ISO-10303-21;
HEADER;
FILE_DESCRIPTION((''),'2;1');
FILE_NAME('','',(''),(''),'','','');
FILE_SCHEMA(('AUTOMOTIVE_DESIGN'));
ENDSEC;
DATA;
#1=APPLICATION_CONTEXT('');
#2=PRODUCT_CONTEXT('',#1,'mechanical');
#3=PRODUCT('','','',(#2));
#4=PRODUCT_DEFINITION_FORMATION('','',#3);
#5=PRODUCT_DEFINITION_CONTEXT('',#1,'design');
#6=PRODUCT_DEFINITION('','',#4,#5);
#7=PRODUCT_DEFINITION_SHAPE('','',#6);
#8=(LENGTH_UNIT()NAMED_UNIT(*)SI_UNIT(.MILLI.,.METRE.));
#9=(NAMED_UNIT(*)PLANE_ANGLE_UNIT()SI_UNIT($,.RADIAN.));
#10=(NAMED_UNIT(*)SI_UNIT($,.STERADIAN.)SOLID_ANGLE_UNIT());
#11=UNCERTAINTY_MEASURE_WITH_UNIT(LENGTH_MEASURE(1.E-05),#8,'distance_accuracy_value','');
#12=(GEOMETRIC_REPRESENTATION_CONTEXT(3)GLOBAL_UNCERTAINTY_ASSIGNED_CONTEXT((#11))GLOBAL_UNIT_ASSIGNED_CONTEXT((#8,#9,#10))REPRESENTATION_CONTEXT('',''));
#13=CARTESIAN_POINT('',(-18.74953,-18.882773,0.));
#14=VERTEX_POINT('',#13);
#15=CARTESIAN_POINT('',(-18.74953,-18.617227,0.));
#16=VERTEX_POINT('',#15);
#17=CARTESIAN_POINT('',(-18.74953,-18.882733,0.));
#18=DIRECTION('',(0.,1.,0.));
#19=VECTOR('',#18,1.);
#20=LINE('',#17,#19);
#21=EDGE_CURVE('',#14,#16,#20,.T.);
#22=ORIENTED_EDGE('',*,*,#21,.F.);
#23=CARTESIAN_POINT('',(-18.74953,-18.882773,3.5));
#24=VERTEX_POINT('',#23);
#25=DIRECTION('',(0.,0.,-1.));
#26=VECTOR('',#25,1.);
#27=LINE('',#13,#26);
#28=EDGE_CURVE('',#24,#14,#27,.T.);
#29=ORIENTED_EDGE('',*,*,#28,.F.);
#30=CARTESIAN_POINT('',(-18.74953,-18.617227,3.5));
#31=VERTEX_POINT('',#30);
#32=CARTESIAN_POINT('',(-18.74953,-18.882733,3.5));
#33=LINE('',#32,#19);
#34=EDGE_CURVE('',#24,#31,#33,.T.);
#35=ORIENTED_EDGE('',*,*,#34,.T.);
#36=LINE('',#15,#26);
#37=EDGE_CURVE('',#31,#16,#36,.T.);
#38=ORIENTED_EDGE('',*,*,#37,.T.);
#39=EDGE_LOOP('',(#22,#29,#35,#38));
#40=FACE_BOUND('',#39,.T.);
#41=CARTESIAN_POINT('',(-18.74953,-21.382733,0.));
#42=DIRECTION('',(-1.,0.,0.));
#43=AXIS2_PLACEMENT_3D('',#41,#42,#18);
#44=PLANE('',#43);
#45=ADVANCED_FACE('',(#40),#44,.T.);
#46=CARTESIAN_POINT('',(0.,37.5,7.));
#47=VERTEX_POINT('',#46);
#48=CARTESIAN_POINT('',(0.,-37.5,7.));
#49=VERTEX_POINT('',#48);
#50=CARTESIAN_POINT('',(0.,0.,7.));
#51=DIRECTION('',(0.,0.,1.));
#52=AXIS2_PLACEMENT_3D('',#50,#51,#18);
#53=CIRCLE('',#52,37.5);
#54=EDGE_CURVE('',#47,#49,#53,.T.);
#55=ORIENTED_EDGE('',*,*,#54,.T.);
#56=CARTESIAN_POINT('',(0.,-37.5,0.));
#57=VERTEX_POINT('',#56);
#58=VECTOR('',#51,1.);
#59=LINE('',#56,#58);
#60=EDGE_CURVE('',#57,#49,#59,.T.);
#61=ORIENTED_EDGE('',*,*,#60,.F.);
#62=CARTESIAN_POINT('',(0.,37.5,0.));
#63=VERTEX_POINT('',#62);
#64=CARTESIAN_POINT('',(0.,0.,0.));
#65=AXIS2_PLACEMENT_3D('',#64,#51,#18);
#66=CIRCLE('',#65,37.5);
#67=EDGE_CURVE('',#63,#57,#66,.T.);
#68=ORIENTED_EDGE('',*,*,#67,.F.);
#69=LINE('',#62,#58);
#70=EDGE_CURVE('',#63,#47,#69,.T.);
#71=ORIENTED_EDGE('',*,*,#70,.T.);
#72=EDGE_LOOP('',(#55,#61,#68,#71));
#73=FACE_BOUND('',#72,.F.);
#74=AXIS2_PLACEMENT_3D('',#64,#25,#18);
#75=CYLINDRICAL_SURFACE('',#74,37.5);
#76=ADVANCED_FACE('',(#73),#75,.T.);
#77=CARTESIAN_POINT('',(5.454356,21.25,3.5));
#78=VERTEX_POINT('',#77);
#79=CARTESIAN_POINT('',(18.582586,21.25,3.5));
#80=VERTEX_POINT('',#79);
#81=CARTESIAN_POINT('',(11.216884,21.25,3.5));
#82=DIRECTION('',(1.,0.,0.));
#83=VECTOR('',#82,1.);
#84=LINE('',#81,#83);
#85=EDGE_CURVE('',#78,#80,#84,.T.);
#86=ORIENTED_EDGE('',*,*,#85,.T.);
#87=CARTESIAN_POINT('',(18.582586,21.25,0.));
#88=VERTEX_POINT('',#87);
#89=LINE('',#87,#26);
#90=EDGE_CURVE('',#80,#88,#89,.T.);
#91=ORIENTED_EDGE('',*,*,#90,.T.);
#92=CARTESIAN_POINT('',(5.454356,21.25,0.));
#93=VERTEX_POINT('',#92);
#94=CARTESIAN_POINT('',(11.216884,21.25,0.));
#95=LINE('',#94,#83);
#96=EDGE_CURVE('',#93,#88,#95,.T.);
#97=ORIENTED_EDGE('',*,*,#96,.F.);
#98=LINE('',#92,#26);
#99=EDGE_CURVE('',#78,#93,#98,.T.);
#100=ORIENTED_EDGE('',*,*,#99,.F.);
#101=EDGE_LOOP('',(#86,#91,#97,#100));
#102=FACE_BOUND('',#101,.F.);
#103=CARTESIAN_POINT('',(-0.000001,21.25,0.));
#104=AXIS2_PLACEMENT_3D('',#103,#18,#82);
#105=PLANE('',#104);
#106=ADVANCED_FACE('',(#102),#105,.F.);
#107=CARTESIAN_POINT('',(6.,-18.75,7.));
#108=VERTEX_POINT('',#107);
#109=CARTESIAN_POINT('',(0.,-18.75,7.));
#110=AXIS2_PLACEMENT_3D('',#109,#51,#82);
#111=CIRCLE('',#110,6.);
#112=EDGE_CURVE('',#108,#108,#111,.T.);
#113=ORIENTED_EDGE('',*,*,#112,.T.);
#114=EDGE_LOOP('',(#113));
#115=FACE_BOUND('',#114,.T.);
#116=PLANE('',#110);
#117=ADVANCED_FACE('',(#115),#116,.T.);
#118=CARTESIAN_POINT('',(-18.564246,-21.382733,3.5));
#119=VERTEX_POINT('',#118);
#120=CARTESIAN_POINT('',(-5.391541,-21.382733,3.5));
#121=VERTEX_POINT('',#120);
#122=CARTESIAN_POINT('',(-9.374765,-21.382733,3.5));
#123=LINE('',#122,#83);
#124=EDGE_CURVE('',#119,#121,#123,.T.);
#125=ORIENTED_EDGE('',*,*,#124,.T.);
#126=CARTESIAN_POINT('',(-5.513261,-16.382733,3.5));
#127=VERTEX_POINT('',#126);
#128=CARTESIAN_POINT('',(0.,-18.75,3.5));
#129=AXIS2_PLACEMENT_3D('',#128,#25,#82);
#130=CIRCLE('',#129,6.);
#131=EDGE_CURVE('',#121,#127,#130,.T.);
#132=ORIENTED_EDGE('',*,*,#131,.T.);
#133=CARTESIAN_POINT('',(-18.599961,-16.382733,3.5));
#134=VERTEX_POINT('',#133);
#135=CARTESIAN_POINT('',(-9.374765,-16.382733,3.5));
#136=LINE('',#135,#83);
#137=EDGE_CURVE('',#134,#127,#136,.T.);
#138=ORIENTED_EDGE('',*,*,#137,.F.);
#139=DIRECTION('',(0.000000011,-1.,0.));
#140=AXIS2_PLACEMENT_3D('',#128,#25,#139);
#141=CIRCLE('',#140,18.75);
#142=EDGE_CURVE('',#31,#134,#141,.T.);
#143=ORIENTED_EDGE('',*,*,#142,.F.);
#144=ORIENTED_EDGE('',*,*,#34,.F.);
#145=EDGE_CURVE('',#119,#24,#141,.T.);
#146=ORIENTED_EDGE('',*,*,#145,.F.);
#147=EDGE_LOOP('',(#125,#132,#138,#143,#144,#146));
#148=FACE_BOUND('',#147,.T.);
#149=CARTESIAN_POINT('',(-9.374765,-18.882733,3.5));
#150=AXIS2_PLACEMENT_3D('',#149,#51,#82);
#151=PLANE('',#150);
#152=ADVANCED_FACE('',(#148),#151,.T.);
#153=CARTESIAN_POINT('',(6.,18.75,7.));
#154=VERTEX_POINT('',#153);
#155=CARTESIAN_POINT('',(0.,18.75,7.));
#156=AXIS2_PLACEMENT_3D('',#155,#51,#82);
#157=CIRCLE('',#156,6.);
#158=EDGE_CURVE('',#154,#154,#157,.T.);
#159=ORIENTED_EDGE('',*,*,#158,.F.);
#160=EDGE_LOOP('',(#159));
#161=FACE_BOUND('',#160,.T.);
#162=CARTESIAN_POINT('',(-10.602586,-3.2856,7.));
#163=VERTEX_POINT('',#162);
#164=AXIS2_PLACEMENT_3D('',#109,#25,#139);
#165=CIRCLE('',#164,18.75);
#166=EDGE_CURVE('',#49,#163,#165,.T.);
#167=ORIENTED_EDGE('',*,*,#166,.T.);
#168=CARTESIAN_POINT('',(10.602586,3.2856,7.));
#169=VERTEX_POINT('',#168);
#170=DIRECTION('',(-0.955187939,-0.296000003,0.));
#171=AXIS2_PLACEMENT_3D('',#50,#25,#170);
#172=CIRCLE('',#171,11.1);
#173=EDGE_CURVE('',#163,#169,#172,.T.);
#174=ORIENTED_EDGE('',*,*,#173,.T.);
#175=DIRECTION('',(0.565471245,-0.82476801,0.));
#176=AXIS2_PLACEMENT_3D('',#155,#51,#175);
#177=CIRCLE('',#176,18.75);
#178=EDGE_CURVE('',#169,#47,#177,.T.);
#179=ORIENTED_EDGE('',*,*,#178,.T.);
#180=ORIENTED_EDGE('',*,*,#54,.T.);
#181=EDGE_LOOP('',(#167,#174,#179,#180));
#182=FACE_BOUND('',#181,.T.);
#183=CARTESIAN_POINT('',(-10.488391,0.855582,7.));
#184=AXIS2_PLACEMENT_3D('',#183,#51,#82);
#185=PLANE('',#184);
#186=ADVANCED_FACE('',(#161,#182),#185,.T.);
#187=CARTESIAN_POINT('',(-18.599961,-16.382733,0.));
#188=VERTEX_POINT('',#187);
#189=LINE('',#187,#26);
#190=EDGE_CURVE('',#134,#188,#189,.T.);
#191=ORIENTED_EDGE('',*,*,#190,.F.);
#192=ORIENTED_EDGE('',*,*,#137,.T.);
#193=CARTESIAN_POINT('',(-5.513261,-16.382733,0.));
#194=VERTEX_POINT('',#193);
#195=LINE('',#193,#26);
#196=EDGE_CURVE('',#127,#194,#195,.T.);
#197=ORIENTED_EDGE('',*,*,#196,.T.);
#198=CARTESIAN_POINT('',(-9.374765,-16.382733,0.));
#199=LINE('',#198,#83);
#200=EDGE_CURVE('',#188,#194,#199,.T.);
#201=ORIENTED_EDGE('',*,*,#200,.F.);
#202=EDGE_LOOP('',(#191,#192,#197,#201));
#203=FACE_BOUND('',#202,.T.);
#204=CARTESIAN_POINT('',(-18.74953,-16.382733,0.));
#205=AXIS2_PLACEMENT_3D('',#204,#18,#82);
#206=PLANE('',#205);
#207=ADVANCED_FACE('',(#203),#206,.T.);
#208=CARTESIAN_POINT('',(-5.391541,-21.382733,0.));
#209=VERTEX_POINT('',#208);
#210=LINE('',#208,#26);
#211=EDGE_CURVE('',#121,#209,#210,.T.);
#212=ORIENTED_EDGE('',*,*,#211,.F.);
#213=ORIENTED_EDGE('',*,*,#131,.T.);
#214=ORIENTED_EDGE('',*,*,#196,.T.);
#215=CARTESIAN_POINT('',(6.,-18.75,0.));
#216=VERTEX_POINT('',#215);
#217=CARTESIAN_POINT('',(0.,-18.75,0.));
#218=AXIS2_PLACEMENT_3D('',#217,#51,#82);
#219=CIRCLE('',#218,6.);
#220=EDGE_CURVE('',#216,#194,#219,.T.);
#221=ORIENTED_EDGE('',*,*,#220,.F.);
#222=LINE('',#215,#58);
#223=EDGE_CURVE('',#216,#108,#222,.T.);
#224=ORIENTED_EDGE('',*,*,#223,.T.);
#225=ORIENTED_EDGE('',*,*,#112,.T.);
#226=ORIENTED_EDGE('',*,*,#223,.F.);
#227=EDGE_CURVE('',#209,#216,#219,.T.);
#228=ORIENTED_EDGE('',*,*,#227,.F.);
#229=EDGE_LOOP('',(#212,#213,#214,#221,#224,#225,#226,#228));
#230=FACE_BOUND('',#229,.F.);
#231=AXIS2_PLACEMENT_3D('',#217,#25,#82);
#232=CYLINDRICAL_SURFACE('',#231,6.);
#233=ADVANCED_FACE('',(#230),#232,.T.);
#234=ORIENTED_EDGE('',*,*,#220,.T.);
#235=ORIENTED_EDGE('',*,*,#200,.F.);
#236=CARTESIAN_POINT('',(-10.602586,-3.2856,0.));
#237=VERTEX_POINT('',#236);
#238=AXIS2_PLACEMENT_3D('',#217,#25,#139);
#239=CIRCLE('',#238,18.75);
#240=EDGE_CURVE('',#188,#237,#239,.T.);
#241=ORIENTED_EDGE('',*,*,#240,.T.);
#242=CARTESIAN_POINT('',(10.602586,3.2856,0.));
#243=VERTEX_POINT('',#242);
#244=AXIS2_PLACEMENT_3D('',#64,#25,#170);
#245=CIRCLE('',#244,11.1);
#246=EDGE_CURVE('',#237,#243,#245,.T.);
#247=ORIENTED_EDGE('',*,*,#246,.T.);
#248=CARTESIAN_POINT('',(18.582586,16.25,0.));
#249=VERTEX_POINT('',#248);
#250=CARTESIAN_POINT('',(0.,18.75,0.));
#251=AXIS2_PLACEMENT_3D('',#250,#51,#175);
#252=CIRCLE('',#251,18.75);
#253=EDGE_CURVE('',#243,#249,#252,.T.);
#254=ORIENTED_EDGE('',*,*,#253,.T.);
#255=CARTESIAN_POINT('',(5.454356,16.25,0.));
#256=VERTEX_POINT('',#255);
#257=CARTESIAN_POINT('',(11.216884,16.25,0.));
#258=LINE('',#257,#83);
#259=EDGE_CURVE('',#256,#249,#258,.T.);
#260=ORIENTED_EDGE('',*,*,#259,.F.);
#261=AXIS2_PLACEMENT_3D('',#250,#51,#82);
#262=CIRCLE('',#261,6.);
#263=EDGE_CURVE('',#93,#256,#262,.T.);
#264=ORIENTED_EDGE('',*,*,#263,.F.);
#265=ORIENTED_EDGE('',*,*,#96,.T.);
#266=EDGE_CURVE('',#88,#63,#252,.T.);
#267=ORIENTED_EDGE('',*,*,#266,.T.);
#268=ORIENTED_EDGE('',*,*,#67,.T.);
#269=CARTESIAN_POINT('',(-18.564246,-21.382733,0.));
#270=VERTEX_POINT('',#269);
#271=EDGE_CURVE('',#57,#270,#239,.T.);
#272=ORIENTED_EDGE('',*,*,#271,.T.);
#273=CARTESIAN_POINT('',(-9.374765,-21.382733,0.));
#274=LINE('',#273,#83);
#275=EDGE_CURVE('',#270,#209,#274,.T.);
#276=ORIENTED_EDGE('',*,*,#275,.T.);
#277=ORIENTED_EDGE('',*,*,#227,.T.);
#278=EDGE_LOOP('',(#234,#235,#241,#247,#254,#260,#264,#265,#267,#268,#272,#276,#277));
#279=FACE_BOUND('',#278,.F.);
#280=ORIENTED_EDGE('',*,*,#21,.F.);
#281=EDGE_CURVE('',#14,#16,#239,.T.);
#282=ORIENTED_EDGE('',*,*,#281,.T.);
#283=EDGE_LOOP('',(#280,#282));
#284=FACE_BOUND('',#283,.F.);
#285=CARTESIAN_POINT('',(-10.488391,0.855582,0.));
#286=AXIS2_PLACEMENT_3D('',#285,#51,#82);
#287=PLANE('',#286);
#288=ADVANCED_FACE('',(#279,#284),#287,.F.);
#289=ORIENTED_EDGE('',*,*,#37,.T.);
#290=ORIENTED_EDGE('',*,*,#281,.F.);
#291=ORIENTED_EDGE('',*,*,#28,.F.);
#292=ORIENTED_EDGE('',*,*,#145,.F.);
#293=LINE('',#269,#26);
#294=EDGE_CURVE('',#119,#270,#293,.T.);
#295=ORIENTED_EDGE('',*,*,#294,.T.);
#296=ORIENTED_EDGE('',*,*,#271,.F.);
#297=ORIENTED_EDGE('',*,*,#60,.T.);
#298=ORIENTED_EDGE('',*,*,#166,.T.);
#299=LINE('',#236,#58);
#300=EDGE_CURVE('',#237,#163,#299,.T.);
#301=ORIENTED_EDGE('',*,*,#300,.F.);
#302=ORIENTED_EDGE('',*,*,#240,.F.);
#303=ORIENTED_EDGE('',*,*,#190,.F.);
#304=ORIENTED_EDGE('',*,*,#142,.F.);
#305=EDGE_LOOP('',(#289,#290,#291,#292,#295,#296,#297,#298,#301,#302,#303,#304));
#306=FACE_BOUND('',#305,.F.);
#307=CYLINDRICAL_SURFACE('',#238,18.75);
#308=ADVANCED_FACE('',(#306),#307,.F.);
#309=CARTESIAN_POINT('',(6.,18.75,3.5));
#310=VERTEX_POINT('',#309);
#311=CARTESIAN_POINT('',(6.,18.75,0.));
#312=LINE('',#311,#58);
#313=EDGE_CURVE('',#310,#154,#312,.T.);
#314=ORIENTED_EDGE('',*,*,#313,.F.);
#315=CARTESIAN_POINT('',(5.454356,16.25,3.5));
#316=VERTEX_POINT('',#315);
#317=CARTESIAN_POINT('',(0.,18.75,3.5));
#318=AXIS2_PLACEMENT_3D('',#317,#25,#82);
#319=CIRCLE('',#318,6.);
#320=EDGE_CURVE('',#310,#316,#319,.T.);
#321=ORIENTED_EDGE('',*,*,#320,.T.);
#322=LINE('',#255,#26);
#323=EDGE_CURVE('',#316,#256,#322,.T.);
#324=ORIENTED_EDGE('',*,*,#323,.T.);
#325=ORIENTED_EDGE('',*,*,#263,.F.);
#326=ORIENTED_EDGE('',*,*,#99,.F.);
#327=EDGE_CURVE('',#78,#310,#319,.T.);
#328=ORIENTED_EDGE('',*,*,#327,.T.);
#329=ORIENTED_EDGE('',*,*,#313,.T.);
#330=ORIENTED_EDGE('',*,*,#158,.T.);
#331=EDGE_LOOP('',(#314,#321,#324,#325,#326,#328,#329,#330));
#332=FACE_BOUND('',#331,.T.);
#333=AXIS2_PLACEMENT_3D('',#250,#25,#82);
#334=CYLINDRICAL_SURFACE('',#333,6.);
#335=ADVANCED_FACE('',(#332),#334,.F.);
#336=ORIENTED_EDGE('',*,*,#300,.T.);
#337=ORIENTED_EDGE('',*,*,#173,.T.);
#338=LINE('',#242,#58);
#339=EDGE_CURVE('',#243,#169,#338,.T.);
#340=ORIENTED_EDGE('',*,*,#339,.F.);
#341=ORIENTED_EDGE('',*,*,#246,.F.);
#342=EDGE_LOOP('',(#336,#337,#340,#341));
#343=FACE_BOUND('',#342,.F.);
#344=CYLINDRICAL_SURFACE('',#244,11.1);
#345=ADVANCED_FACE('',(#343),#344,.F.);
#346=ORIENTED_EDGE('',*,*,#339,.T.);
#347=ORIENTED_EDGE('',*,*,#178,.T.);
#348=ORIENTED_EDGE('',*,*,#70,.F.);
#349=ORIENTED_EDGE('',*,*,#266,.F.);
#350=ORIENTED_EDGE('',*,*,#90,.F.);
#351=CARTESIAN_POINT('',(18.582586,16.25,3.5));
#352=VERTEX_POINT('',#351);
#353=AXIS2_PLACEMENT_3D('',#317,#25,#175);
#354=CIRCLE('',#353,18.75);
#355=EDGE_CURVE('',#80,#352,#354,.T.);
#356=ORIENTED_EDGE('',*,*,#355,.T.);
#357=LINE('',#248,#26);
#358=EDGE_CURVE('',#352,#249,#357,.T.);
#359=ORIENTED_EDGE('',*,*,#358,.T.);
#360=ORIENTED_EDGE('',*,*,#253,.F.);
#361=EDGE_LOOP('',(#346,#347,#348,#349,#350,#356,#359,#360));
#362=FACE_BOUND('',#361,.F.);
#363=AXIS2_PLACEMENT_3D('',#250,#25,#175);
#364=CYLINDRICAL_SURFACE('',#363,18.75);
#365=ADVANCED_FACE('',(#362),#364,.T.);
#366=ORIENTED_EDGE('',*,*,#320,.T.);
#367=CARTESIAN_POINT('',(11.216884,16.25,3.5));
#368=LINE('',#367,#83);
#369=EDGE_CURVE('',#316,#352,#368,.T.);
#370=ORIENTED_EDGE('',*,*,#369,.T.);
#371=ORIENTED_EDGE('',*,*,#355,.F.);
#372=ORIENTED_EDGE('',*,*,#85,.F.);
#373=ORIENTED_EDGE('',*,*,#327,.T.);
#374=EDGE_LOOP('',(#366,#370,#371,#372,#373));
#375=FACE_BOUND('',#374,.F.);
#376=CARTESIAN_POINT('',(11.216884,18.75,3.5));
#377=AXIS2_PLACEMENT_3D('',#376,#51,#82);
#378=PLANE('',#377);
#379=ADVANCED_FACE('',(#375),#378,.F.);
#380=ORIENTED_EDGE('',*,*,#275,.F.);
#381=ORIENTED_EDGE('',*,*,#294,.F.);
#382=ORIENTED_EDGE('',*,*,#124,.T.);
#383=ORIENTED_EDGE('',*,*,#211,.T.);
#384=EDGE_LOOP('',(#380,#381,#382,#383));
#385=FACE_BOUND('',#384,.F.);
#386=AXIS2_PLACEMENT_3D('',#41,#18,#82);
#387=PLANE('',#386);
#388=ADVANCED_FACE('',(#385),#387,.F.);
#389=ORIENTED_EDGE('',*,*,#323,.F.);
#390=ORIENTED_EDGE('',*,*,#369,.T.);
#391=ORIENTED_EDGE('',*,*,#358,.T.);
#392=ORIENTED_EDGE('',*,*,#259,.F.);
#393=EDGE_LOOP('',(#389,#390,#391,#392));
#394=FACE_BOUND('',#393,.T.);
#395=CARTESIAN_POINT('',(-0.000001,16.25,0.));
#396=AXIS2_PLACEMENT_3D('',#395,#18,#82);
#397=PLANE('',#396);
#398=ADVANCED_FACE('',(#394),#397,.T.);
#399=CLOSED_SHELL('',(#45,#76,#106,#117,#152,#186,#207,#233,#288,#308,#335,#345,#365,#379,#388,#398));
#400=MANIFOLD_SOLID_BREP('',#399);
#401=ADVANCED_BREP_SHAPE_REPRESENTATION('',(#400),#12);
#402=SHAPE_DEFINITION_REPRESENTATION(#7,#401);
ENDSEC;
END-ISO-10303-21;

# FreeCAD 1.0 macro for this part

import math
import FreeCAD as App
import Part
import Sketcher
from FreeCAD import Vector

doc = App.newDocument("Part")
params = doc.addObject("Spreadsheet::Sheet", "Params")
for row, (alias, value) in enumerate([
    ("sketch1_diameter", "12 mm"),
    ("sketch1_radius", "37.5 mm"),
    ("sketch1_radius2", "11.1 mm"),
    ("sketch1_radius3", "18.75 mm"),
    ("pad1_length", "7 mm"),
    ("sketch2_height", "5 mm"),
    ("pad2_length", "3.5 mm"),
    ("sketch3_height", "5 mm"),
    ("pocket1_length", "3.5 mm"),
], start=1):
    params.set(f"A{row}", alias)
    params.set(f"B{row}", "=" + value)
    params.setAlias(f"B{row}", alias)

body = doc.addObject("PartDesign::Body", "Body")
body.AllowCompound = True

# Sketch on XY plane
sketch1 = body.newObject("Sketcher::SketchObject", "Sketch")
sketch1.AttachmentSupport = (doc.getObject("XY_Plane"), [""])
sketch1.MapMode = "FlatFace"
sketch1.addGeometry([
    Part.ArcOfCircle(Part.Circle(Vector(0, 19, 0), Vector(0, 0, 1), 19), math.radians(-56), math.radians(90)),  # 0
    Part.ArcOfCircle(Part.Circle(Vector(0, 0, 0), Vector(0, 0, 1), 38), math.radians(90), math.radians(270)),  # 1
    Part.ArcOfCircle(Part.Circle(Vector(0, -19, 0), Vector(0, 0, 1), 19), math.radians(124), math.radians(270)),  # 2
    Part.ArcOfCircle(Part.Circle(Vector(0, 0, 0), Vector(0, 0, 1), 11), math.radians(17), math.radians(197)),  # 3
    Part.Circle(Vector(0, 19, 0), Vector(0, 0, 1), 6),  # 4
    Part.Circle(Vector(0, -19, 0), Vector(0, 0, 1), 6),  # 5
], False)
sketch1.addConstraint([
    Sketcher.Constraint("Tangent", 0, 2, 1, 1),
    Sketcher.Constraint("Tangent", 1, 2, 2, 2),
    Sketcher.Constraint("Coincident", 2, 1, 3, 2),
    Sketcher.Constraint("Coincident", 3, 1, 0, 1),
    Sketcher.Constraint("Coincident", 1, 3, -1, 1),
    Sketcher.Constraint("Coincident", 3, 3, -1, 1),
    Sketcher.Constraint("Coincident", 4, 3, 0, 3),
    Sketcher.Constraint("Coincident", 5, 3, 2, 3),
    Sketcher.Constraint("Equal", 0, 2),
    Sketcher.Constraint("Equal", 4, 5),
    Sketcher.Constraint("PointOnObject", 0, 3, -2),
    Sketcher.Constraint("PointOnObject", 2, 3, -2),
    Sketcher.Constraint("Diameter", 4, 12.0),
    Sketcher.Constraint("Radius", 1, 37.5),
    Sketcher.Constraint("Radius", 3, 11.1),
    Sketcher.Constraint("Radius", 0, 18.75),
])
sketch1.setExpression("Constraints[12]", "Params.sketch1_diameter")
sketch1.setExpression("Constraints[13]", "Params.sketch1_radius")
sketch1.setExpression("Constraints[14]", "Params.sketch1_radius2")
sketch1.setExpression("Constraints[15]", "Params.sketch1_radius3")
pad1 = body.newObject("PartDesign::Pad", "Pad")
pad1.Profile = sketch1
pad1.setExpression("Length", "Params.pad1_length")

# Sketch on XY plane
sketch2 = body.newObject("Sketcher::SketchObject", "Sketch001")
sketch2.AttachmentSupport = (doc.getObject("XY_Plane"), [""])
sketch2.MapMode = "FlatFace"
sketch2.addGeometry([
    Part.LineSegment(Vector(-19, -16, 0), Vector(-19, -21, 0)),
    Part.LineSegment(Vector(-19, -21, 0), Vector(0, -21, 0)),
    Part.LineSegment(Vector(0, -21, 0), Vector(0, -16, 0)),
    Part.LineSegment(Vector(0, -16, 0), Vector(-19, -16, 0)),
], False)
sketch2.addConstraint([
    Sketcher.Constraint("Coincident", 0, 2, 1, 1),
    Sketcher.Constraint("Coincident", 1, 2, 2, 1),
    Sketcher.Constraint("Coincident", 2, 2, 3, 1),
    Sketcher.Constraint("Coincident", 3, 2, 0, 1),
    Sketcher.Constraint("Vertical", 0),
    Sketcher.Constraint("Horizontal", 1),
    Sketcher.Constraint("Vertical", 2),
    Sketcher.Constraint("Horizontal", 3),
    Sketcher.Constraint("PointOnObject", 1, 2, -2),
    Sketcher.Constraint("DistanceY", 0, 2, 0, 1, 5.0),
    Sketcher.Constraint("DistanceX", 1, 1, 1, 2, 18.74953),
    Sketcher.Constraint("DistanceY", 0, 2, -1, 1, 21.382733),
])
sketch2.setExpression("Constraints[9]", "Params.sketch2_height")
pad2 = body.newObject("PartDesign::Pad", "Pad001")
pad2.Profile = sketch2
pad2.setExpression("Length", "Params.pad2_length")

# Sketch on XY plane
sketch3 = body.newObject("Sketcher::SketchObject", "Sketch002")
sketch3.AttachmentSupport = (doc.getObject("XY_Plane"), [""])
sketch3.MapMode = "FlatFace"
sketch3.addGeometry([
    Part.LineSegment(Vector(0, 21, 0), Vector(0, 16, 0)),
    Part.LineSegment(Vector(0, 16, 0), Vector(22, 16, 0)),
    Part.LineSegment(Vector(22, 16, 0), Vector(22, 21, 0)),
    Part.LineSegment(Vector(22, 21, 0), Vector(0, 21, 0)),
], False)
sketch3.addConstraint([
    Sketcher.Constraint("Coincident", 0, 2, 1, 1),
    Sketcher.Constraint("Coincident", 1, 2, 2, 1),
    Sketcher.Constraint("Coincident", 2, 2, 3, 1),
    Sketcher.Constraint("Coincident", 3, 2, 0, 1),
    Sketcher.Constraint("Vertical", 0),
    Sketcher.Constraint("Horizontal", 1),
    Sketcher.Constraint("Vertical", 2),
    Sketcher.Constraint("Horizontal", 3),
    Sketcher.Constraint("PointOnObject", 0, 2, -2),
    Sketcher.Constraint("DistanceY", 0, 2, 0, 1, 5.0),
    Sketcher.Constraint("DistanceY", -1, 1, 0, 2, 16.25),
    Sketcher.Constraint("DistanceX", 1, 1, 1, 2, 22.433769),
])
sketch3.setExpression("Constraints[9]", "Params.sketch3_height")
pocket1 = body.newObject("PartDesign::Pocket", "Pocket")
pocket1.Profile = sketch3
pocket1.setExpression("Length", "Params.pocket1_length")
pocket1.Reversed = True

doc.recompute()
